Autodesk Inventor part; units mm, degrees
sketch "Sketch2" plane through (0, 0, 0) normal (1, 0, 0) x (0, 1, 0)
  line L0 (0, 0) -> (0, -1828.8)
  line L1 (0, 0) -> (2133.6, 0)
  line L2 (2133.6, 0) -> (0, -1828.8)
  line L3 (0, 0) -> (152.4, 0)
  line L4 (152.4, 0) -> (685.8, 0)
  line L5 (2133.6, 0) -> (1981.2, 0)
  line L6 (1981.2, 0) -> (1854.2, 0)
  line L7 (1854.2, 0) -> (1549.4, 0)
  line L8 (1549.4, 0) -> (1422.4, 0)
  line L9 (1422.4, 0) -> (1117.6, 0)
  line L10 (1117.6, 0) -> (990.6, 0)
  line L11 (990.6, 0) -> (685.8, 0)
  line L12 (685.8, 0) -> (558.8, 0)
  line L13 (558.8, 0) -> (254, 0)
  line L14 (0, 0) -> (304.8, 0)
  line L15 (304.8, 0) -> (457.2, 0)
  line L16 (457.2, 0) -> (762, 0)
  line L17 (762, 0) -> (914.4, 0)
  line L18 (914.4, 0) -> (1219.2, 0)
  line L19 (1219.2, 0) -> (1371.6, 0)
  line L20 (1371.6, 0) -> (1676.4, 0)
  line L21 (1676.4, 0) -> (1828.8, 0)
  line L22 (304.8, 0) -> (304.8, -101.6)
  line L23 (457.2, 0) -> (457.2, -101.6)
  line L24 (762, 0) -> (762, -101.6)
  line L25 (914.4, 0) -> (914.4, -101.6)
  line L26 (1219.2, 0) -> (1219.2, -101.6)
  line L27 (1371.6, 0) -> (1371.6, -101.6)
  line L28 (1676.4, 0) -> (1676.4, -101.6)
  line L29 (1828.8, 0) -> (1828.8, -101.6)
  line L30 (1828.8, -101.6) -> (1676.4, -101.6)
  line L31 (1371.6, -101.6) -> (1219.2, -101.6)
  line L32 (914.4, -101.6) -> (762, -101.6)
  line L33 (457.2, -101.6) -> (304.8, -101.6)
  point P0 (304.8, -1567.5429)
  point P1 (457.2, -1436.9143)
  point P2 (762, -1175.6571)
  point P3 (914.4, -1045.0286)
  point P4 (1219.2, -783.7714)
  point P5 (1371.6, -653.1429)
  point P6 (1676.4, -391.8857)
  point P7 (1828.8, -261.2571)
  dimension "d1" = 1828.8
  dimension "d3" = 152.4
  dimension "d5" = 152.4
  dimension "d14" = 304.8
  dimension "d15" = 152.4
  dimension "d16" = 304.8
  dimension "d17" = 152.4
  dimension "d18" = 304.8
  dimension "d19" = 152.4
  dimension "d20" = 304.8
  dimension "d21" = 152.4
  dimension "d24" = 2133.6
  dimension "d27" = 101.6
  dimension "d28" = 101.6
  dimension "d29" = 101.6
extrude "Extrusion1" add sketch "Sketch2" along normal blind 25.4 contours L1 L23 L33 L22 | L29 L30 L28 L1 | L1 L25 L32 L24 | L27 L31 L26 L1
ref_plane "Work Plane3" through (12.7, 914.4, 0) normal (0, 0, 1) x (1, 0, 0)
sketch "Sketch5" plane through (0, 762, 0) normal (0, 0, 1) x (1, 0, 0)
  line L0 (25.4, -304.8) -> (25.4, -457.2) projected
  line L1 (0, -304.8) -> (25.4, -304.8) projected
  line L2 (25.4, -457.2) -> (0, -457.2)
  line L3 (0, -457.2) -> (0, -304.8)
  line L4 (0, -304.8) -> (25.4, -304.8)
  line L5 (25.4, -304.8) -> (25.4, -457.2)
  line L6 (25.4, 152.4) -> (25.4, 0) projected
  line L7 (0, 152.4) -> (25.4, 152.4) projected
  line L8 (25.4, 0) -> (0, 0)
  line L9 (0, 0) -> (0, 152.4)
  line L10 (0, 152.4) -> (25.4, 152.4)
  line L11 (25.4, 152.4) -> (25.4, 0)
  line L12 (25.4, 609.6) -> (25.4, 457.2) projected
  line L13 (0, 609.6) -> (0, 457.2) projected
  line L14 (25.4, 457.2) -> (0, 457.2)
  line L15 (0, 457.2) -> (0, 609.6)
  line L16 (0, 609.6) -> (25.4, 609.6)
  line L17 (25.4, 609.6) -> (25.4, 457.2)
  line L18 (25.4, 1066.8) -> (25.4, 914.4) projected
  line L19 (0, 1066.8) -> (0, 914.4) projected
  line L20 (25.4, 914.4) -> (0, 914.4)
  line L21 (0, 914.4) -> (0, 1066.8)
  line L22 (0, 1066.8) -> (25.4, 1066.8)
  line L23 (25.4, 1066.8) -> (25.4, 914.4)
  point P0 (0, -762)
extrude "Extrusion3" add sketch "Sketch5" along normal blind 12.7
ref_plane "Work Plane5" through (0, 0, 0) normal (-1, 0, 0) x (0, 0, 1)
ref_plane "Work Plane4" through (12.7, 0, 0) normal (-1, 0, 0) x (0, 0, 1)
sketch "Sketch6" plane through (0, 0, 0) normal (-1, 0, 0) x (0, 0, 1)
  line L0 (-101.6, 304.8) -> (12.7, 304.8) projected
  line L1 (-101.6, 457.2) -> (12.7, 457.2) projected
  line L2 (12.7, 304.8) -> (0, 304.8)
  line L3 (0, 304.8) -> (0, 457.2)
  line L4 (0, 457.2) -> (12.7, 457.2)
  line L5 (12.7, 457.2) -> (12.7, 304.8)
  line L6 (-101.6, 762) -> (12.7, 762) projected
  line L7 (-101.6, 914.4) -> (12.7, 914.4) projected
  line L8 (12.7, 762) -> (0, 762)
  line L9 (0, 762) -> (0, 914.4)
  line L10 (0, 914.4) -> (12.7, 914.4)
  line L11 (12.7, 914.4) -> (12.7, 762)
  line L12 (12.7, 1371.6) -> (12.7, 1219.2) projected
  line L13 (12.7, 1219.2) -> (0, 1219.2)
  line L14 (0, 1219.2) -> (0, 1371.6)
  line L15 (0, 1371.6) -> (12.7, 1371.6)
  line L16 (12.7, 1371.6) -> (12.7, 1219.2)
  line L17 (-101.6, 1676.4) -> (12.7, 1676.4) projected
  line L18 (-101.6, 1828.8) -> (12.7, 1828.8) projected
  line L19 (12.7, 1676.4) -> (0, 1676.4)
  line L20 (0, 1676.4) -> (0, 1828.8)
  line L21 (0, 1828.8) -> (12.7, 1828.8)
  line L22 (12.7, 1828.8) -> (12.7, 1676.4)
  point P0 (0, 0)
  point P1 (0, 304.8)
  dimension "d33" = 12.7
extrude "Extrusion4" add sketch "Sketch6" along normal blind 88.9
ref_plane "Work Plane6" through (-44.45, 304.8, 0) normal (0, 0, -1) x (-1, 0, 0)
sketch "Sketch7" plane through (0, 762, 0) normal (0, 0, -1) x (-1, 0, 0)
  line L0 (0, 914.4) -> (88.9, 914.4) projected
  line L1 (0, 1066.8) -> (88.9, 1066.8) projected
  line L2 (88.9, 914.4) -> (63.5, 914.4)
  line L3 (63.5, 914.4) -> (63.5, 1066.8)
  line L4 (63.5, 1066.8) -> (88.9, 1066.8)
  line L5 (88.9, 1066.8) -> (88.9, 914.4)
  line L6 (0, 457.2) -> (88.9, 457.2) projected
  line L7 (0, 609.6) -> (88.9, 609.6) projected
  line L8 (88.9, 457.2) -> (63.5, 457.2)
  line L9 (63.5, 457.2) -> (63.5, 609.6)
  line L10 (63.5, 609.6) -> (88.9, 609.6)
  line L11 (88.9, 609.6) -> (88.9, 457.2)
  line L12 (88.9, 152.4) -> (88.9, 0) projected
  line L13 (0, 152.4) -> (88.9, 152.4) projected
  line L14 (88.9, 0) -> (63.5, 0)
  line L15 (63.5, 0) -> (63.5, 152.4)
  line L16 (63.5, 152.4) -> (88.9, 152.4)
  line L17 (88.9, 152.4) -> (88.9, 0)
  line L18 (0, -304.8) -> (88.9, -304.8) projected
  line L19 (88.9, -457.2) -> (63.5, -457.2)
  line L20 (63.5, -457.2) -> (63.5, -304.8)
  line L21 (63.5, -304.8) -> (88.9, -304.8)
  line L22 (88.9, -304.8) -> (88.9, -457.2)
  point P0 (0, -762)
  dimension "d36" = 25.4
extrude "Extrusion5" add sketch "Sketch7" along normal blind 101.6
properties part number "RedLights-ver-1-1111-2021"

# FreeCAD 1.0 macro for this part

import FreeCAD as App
import Part
import Sketcher
from FreeCAD import Vector
Q = App.Units.Quantity

doc = App.newDocument("Part")
body = doc.addObject("PartDesign::Body", "Body")
body.AllowCompound = True

sketch1 = body.newObject("Sketcher::SketchObject", "Sketch")
sketch1.AttachmentSupport = (doc.getObject("YZ_Plane"), [""])
sketch1.MapMode = "FlatFace"
sketch1.addGeometry([
    Part.LineSegment(Vector(457, 0, 0), Vector(305, 0, 0)),
    Part.LineSegment(Vector(305, 0, 0), Vector(305, -102, 0)),
    Part.LineSegment(Vector(305, -102, 0), Vector(457, -102, 0)),
    Part.LineSegment(Vector(457, -102, 0), Vector(457, 0, 0)),
    Part.LineSegment(Vector(1829, -102, 0), Vector(1829, 0, 0)),
    Part.LineSegment(Vector(1829, 0, 0), Vector(1676, 0, 0)),
    Part.LineSegment(Vector(1676, 0, 0), Vector(1676, -102, 0)),
    Part.LineSegment(Vector(1676, -102, 0), Vector(1829, -102, 0)),
    Part.LineSegment(Vector(914, 0, 0), Vector(762, 0, 0)),
    Part.LineSegment(Vector(762, 0, 0), Vector(762, -102, 0)),
    Part.LineSegment(Vector(762, -102, 0), Vector(914, -102, 0)),
    Part.LineSegment(Vector(914, -102, 0), Vector(914, 0, 0)),
    Part.LineSegment(Vector(1372, -102, 0), Vector(1372, 0, 0)),
    Part.LineSegment(Vector(1372, 0, 0), Vector(1219, 0, 0)),
    Part.LineSegment(Vector(1219, 0, 0), Vector(1219, -102, 0)),
    Part.LineSegment(Vector(1219, -102, 0), Vector(1372, -102, 0)),
], False)
sketch1.addConstraint([
    Sketcher.Constraint("Coincident", 0, 2, 1, 1),
    Sketcher.Constraint("Coincident", 1, 2, 2, 1),
    Sketcher.Constraint("Coincident", 2, 2, 3, 1),
    Sketcher.Constraint("Coincident", 3, 2, 0, 1),
    Sketcher.Constraint("Coincident", 4, 2, 5, 1),
    Sketcher.Constraint("Coincident", 5, 2, 6, 1),
    Sketcher.Constraint("Coincident", 6, 2, 7, 1),
    Sketcher.Constraint("Coincident", 7, 2, 4, 1),
    Sketcher.Constraint("Coincident", 8, 2, 9, 1),
    Sketcher.Constraint("Coincident", 9, 2, 10, 1),
    Sketcher.Constraint("Coincident", 10, 2, 11, 1),
    Sketcher.Constraint("Coincident", 11, 2, 8, 1),
    Sketcher.Constraint("Coincident", 12, 2, 13, 1),
    Sketcher.Constraint("Coincident", 13, 2, 14, 1),
    Sketcher.Constraint("Coincident", 14, 2, 15, 1),
    Sketcher.Constraint("Coincident", 15, 2, 12, 1),
    Sketcher.Constraint("Horizontal", 0),
    Sketcher.Constraint("Vertical", 1),
    Sketcher.Constraint("Horizontal", 2),
    Sketcher.Constraint("Vertical", 3),
    Sketcher.Constraint("Vertical", 4),
    Sketcher.Constraint("Horizontal", 5),
    Sketcher.Constraint("Vertical", 6),
    Sketcher.Constraint("Horizontal", 7),
    Sketcher.Constraint("Horizontal", 8),
    Sketcher.Constraint("Vertical", 9),
    Sketcher.Constraint("Horizontal", 10),
    Sketcher.Constraint("Vertical", 11),
    Sketcher.Constraint("Vertical", 12),
    Sketcher.Constraint("Horizontal", 13),
    Sketcher.Constraint("Vertical", 14),
    Sketcher.Constraint("Horizontal", 15),
    Sketcher.Constraint("PointOnObject", 0, 2, -1),
    Sketcher.Constraint("PointOnObject", 4, 2, -1),
    Sketcher.Constraint("PointOnObject", 8, 2, -1),
    Sketcher.Constraint("PointOnObject", 12, 2, -1),
    Sketcher.Constraint("Horizontal", 2, 2, 6, 2),
    Sketcher.Constraint("Horizontal", 7, 2, 9, 2),
    Sketcher.Constraint("Horizontal", 10, 2, 14, 2),
    Sketcher.Constraint("Equal", 2, 5),
    Sketcher.Constraint("Equal", 7, 8),
    Sketcher.Constraint("Equal", 10, 13),
    Sketcher.Constraint("DistanceX", 0, 2, 0, 1, Q("6 in")),
    Sketcher.Constraint("DistanceY", 1, 2, 1, 1, Q("4 in")),
    Sketcher.Constraint("DistanceX", -1, 1, 0, 2, Q("12 in")),
    Sketcher.Constraint("DistanceX", -1, 1, 4, 2, Q("72 in")),
    Sketcher.Constraint("DistanceX", 3, 2, 8, 2, Q("12 in")),
    Sketcher.Constraint("DistanceX", 12, 2, 5, 2, Q("12 in")),
])
pad1 = body.newObject("PartDesign::Pad", "Pad")
pad1.Profile = sketch1
pad1.Length = Q("1 in")

sketch2 = body.newObject("Sketcher::SketchObject", "Sketch001")
sketch2.AttachmentSupport = (doc.getObject("XY_Plane"), [""])
sketch2.MapMode = "FlatFace"
sketch2.addGeometry([
    Part.LineSegment(Vector(25, 305, 0), Vector(25, 457, 0)),
    Part.LineSegment(Vector(25, 457, 0), Vector(0, 457, 0)),
    Part.LineSegment(Vector(0, 457, 0), Vector(0, 305, 0)),
    Part.LineSegment(Vector(0, 305, 0), Vector(25, 305, 0)),
    Part.LineSegment(Vector(25, 762, 0), Vector(25, 914, 0)),
    Part.LineSegment(Vector(25, 914, 0), Vector(0, 914, 0)),
    Part.LineSegment(Vector(0, 914, 0), Vector(0, 762, 0)),
    Part.LineSegment(Vector(0, 762, 0), Vector(25, 762, 0)),
    Part.LineSegment(Vector(25, 1219, 0), Vector(25, 1372, 0)),
    Part.LineSegment(Vector(25, 1372, 0), Vector(0, 1372, 0)),
    Part.LineSegment(Vector(0, 1372, 0), Vector(0, 1219, 0)),
    Part.LineSegment(Vector(0, 1219, 0), Vector(25, 1219, 0)),
    Part.LineSegment(Vector(25, 1676, 0), Vector(25, 1829, 0)),
    Part.LineSegment(Vector(25, 1829, 0), Vector(0, 1829, 0)),
    Part.LineSegment(Vector(0, 1829, 0), Vector(0, 1676, 0)),
    Part.LineSegment(Vector(0, 1676, 0), Vector(25, 1676, 0)),
], False)
sketch2.addConstraint([
    Sketcher.Constraint("Coincident", 0, 2, 1, 1),
    Sketcher.Constraint("Coincident", 1, 2, 2, 1),
    Sketcher.Constraint("Coincident", 2, 2, 3, 1),
    Sketcher.Constraint("Coincident", 3, 2, 0, 1),
    Sketcher.Constraint("Coincident", 4, 2, 5, 1),
    Sketcher.Constraint("Coincident", 5, 2, 6, 1),
    Sketcher.Constraint("Coincident", 6, 2, 7, 1),
    Sketcher.Constraint("Coincident", 7, 2, 4, 1),
    Sketcher.Constraint("Coincident", 8, 2, 9, 1),
    Sketcher.Constraint("Coincident", 9, 2, 10, 1),
    Sketcher.Constraint("Coincident", 10, 2, 11, 1),
    Sketcher.Constraint("Coincident", 11, 2, 8, 1),
    Sketcher.Constraint("Coincident", 12, 2, 13, 1),
    Sketcher.Constraint("Coincident", 13, 2, 14, 1),
    Sketcher.Constraint("Coincident", 14, 2, 15, 1),
    Sketcher.Constraint("Coincident", 15, 2, 12, 1),
    Sketcher.Constraint("Vertical", 0),
    Sketcher.Constraint("Horizontal", 1),
    Sketcher.Constraint("Vertical", 2),
    Sketcher.Constraint("Horizontal", 3),
    Sketcher.Constraint("Vertical", 4),
    Sketcher.Constraint("Horizontal", 5),
    Sketcher.Constraint("Vertical", 6),
    Sketcher.Constraint("Horizontal", 7),
    Sketcher.Constraint("Vertical", 8),
    Sketcher.Constraint("Horizontal", 9),
    Sketcher.Constraint("Vertical", 10),
    Sketcher.Constraint("Horizontal", 11),
    Sketcher.Constraint("Vertical", 12),
    Sketcher.Constraint("Horizontal", 13),
    Sketcher.Constraint("Vertical", 14),
    Sketcher.Constraint("Horizontal", 15),
    Sketcher.Constraint("PointOnObject", 1, 2, -2),
    Sketcher.Constraint("PointOnObject", 5, 2, -2),
    Sketcher.Constraint("PointOnObject", 9, 2, -2),
    Sketcher.Constraint("PointOnObject", 13, 2, -2),
    Sketcher.Constraint("Vertical", 3, 2, 4, 2),
    Sketcher.Constraint("Vertical", 7, 2, 8, 2),
    Sketcher.Constraint("Vertical", 11, 2, 12, 2),
    Sketcher.Constraint("Equal", 2, 4),
    Sketcher.Constraint("Equal", 6, 8),
    Sketcher.Constraint("Equal", 10, 12),
    Sketcher.Constraint("DistanceX", 1, 2, 1, 1, Q("1 in")),
    Sketcher.Constraint("DistanceY", 0, 1, 0, 2, Q("6 in")),
    Sketcher.Constraint("DistanceY", -1, 1, 0, 2, Q("18 in")),
    Sketcher.Constraint("DistanceY", -1, 1, 4, 2, Q("36 in")),
    Sketcher.Constraint("DistanceY", -1, 1, 8, 2, Q("54 in")),
    Sketcher.Constraint("DistanceY", -1, 1, 12, 2, Q("72 in")),
])
pad2 = body.newObject("PartDesign::Pad", "Pad001")
pad2.Profile = sketch2
pad2.Length = Q("0.5 in")

sketch3 = body.newObject("Sketcher::SketchObject", "Sketch002")
sketch3.AttachmentSupport = (doc.getObject("YZ_Plane"), [""])
sketch3.MapMode = "FlatFace"
sketch3.addGeometry([
    Part.LineSegment(Vector(457, 0, 0), Vector(305, 0, 0)),
    Part.LineSegment(Vector(305, 0, 0), Vector(305, 13, 0)),
    Part.LineSegment(Vector(305, 13, 0), Vector(457, 13, 0)),
    Part.LineSegment(Vector(457, 13, 0), Vector(457, 0, 0)),
    Part.LineSegment(Vector(914, 0, 0), Vector(762, 0, 0)),
    Part.LineSegment(Vector(762, 0, 0), Vector(762, 13, 0)),
    Part.LineSegment(Vector(762, 13, 0), Vector(914, 13, 0)),
    Part.LineSegment(Vector(914, 13, 0), Vector(914, 0, 0)),
    Part.LineSegment(Vector(1219, 13, 0), Vector(1372, 13, 0)),
    Part.LineSegment(Vector(1372, 13, 0), Vector(1372, 0, 0)),
    Part.LineSegment(Vector(1372, 0, 0), Vector(1219, 0, 0)),
    Part.LineSegment(Vector(1219, 0, 0), Vector(1219, 13, 0)),
    Part.LineSegment(Vector(1829, 0, 0), Vector(1676, 0, 0)),
    Part.LineSegment(Vector(1676, 0, 0), Vector(1676, 13, 0)),
    Part.LineSegment(Vector(1676, 13, 0), Vector(1829, 13, 0)),
    Part.LineSegment(Vector(1829, 13, 0), Vector(1829, 0, 0)),
], False)
sketch3.addConstraint([
    Sketcher.Constraint("Coincident", 0, 2, 1, 1),
    Sketcher.Constraint("Coincident", 1, 2, 2, 1),
    Sketcher.Constraint("Coincident", 2, 2, 3, 1),
    Sketcher.Constraint("Coincident", 3, 2, 0, 1),
    Sketcher.Constraint("Coincident", 4, 2, 5, 1),
    Sketcher.Constraint("Coincident", 5, 2, 6, 1),
    Sketcher.Constraint("Coincident", 6, 2, 7, 1),
    Sketcher.Constraint("Coincident", 7, 2, 4, 1),
    Sketcher.Constraint("Coincident", 8, 2, 9, 1),
    Sketcher.Constraint("Coincident", 9, 2, 10, 1),
    Sketcher.Constraint("Coincident", 10, 2, 11, 1),
    Sketcher.Constraint("Coincident", 11, 2, 8, 1),
    Sketcher.Constraint("Coincident", 12, 2, 13, 1),
    Sketcher.Constraint("Coincident", 13, 2, 14, 1),
    Sketcher.Constraint("Coincident", 14, 2, 15, 1),
    Sketcher.Constraint("Coincident", 15, 2, 12, 1),
    Sketcher.Constraint("Horizontal", 0),
    Sketcher.Constraint("Vertical", 1),
    Sketcher.Constraint("Horizontal", 2),
    Sketcher.Constraint("Vertical", 3),
    Sketcher.Constraint("Horizontal", 4),
    Sketcher.Constraint("Vertical", 5),
    Sketcher.Constraint("Horizontal", 6),
    Sketcher.Constraint("Vertical", 7),
    Sketcher.Constraint("Horizontal", 8),
    Sketcher.Constraint("Vertical", 9),
    Sketcher.Constraint("Horizontal", 10),
    Sketcher.Constraint("Vertical", 11),
    Sketcher.Constraint("Horizontal", 12),
    Sketcher.Constraint("Vertical", 13),
    Sketcher.Constraint("Horizontal", 14),
    Sketcher.Constraint("Vertical", 15),
    Sketcher.Constraint("PointOnObject", 0, 2, -1),
    Sketcher.Constraint("PointOnObject", 4, 2, -1),
    Sketcher.Constraint("PointOnObject", 9, 2, -1),
    Sketcher.Constraint("PointOnObject", 12, 2, -1),
    Sketcher.Constraint("Horizontal", 2, 2, 5, 2),
    Sketcher.Constraint("Horizontal", 6, 2, 8, 2),
    Sketcher.Constraint("Horizontal", 11, 2, 13, 2),
    Sketcher.Constraint("Equal", 2, 4),
    Sketcher.Constraint("Equal", 6, 8),
    Sketcher.Constraint("Equal", 10, 12),
    Sketcher.Constraint("DistanceY", 1, 1, 1, 2, Q("0.5 in")),
    Sketcher.Constraint("DistanceX", 0, 2, 0, 1, Q("6 in")),
    Sketcher.Constraint("DistanceX", -1, 1, 0, 2, Q("12 in")),
    Sketcher.Constraint("DistanceX", -1, 1, 4, 2, Q("30 in")),
    Sketcher.Constraint("DistanceX", -1, 1, 8, 2, Q("54 in")),
    Sketcher.Constraint("DistanceX", -1, 1, 12, 2, Q("66 in")),
])
pad3 = body.newObject("PartDesign::Pad", "Pad002")
pad3.Profile = sketch3
pad3.Length = Q("3.5 in")
pad3.Reversed = True

sketch4 = body.newObject("Sketcher::SketchObject", "Sketch003")
sketch4.AttachmentSupport = (doc.getObject("XY_Plane"), [""])
sketch4.MapMode = "FlatFace"
sketch4.addGeometry([
    Part.LineSegment(Vector(-64, 1829, 0), Vector(-64, 1676, 0)),
    Part.LineSegment(Vector(-64, 1676, 0), Vector(-89, 1676, 0)),
    Part.LineSegment(Vector(-89, 1676, 0), Vector(-89, 1829, 0)),
    Part.LineSegment(Vector(-89, 1829, 0), Vector(-64, 1829, 0)),
    Part.LineSegment(Vector(-64, 1372, 0), Vector(-64, 1219, 0)),
    Part.LineSegment(Vector(-64, 1219, 0), Vector(-89, 1219, 0)),
    Part.LineSegment(Vector(-89, 1219, 0), Vector(-89, 1372, 0)),
    Part.LineSegment(Vector(-89, 1372, 0), Vector(-64, 1372, 0)),
    Part.LineSegment(Vector(-89, 762, 0), Vector(-89, 914, 0)),
    Part.LineSegment(Vector(-89, 914, 0), Vector(-64, 914, 0)),
    Part.LineSegment(Vector(-64, 914, 0), Vector(-64, 762, 0)),
    Part.LineSegment(Vector(-64, 762, 0), Vector(-89, 762, 0)),
    Part.LineSegment(Vector(-89, 457, 0), Vector(-64, 457, 0)),
    Part.LineSegment(Vector(-64, 457, 0), Vector(-64, 305, 0)),
    Part.LineSegment(Vector(-64, 305, 0), Vector(-89, 305, 0)),
    Part.LineSegment(Vector(-89, 305, 0), Vector(-89, 457, 0)),
], False)
sketch4.addConstraint([
    Sketcher.Constraint("Coincident", 0, 2, 1, 1),
    Sketcher.Constraint("Coincident", 1, 2, 2, 1),
    Sketcher.Constraint("Coincident", 2, 2, 3, 1),
    Sketcher.Constraint("Coincident", 3, 2, 0, 1),
    Sketcher.Constraint("Coincident", 4, 2, 5, 1),
    Sketcher.Constraint("Coincident", 5, 2, 6, 1),
    Sketcher.Constraint("Coincident", 6, 2, 7, 1),
    Sketcher.Constraint("Coincident", 7, 2, 4, 1),
    Sketcher.Constraint("Coincident", 8, 2, 9, 1),
    Sketcher.Constraint("Coincident", 9, 2, 10, 1),
    Sketcher.Constraint("Coincident", 10, 2, 11, 1),
    Sketcher.Constraint("Coincident", 11, 2, 8, 1),
    Sketcher.Constraint("Coincident", 12, 2, 13, 1),
    Sketcher.Constraint("Coincident", 13, 2, 14, 1),
    Sketcher.Constraint("Coincident", 14, 2, 15, 1),
    Sketcher.Constraint("Coincident", 15, 2, 12, 1),
    Sketcher.Constraint("Vertical", 0),
    Sketcher.Constraint("Horizontal", 1),
    Sketcher.Constraint("Vertical", 2),
    Sketcher.Constraint("Horizontal", 3),
    Sketcher.Constraint("Vertical", 4),
    Sketcher.Constraint("Horizontal", 5),
    Sketcher.Constraint("Vertical", 6),
    Sketcher.Constraint("Horizontal", 7),
    Sketcher.Constraint("Vertical", 8),
    Sketcher.Constraint("Horizontal", 9),
    Sketcher.Constraint("Vertical", 10),
    Sketcher.Constraint("Horizontal", 11),
    Sketcher.Constraint("Horizontal", 12),
    Sketcher.Constraint("Vertical", 13),
    Sketcher.Constraint("Horizontal", 14),
    Sketcher.Constraint("Vertical", 15),
    Sketcher.Constraint("Vertical", 3, 2, 4, 2),
    Sketcher.Constraint("Vertical", 2, 2, 5, 2),
    Sketcher.Constraint("Vertical", 6, 2, 8, 2),
    Sketcher.Constraint("Vertical", 7, 2, 9, 2),
    Sketcher.Constraint("Vertical", 10, 2, 12, 2),
    Sketcher.Constraint("Vertical", 11, 2, 14, 2),
    Sketcher.Constraint("Equal", 2, 4),
    Sketcher.Constraint("Equal", 6, 8),
    Sketcher.Constraint("Equal", 10, 13),
    Sketcher.Constraint("DistanceX", 1, 2, 1, 1, Q("1 in")),
    Sketcher.Constraint("DistanceY", 0, 2, 0, 1, Q("6 in")),
    Sketcher.Constraint("DistanceY", -1, 1, 0, 2, Q("66 in")),
    Sketcher.Constraint("DistanceY", -1, 1, 4, 2, Q("48 in")),
    Sketcher.Constraint("DistanceY", -1, 1, 8, 2, Q("36 in")),
    Sketcher.Constraint("DistanceY", -1, 1, 12, 2, Q("18 in")),
    Sketcher.Constraint("DistanceX", 0, 2, -1, 1, Q("2.5 in")),
])
pad4 = body.newObject("PartDesign::Pad", "Pad003")
pad4.Profile = sketch4
pad4.Length = Q("4 in")
pad4.Reversed = True

doc.recompute()
